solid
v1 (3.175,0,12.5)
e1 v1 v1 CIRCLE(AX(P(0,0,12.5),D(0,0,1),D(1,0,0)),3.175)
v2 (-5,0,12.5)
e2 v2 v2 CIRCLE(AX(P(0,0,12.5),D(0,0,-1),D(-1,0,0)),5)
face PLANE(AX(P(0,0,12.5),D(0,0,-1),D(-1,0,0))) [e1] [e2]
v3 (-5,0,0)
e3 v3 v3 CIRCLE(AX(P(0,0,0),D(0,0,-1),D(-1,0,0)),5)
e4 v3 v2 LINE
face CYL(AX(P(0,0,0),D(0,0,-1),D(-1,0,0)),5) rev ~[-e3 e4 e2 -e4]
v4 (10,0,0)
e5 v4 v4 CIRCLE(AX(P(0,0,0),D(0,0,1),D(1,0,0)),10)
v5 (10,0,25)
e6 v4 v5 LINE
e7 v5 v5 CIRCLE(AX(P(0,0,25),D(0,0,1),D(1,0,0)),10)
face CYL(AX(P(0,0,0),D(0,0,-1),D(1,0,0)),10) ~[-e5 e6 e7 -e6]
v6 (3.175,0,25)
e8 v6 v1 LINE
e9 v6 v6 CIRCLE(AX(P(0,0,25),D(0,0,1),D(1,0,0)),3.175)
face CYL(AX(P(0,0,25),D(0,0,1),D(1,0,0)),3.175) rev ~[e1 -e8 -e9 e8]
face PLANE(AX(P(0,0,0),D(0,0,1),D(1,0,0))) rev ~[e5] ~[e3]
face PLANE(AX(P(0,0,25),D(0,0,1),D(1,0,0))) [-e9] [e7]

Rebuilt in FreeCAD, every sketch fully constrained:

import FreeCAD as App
import Part
import Sketcher

doc = App.newDocument("Part")
body = doc.addObject("PartDesign::Body", "Body")

sketch1 = body.newObject("Sketcher::SketchObject", "Sketch")
sketch1.AttachmentSupport = (doc.getObject("XY_Plane"), [""])
sketch1.MapMode = "FlatFace"
sketch1.addGeometry(Part.Circle(App.Vector(0, 0, 0), App.Vector(0, 0, 1), 10), False)
sketch1.addConstraint(Sketcher.Constraint("Coincident", 0, 3, -1, 1))
sketch1.addConstraint(Sketcher.Constraint("Diameter", 0, 20.0))
pad1 = body.newObject("PartDesign::Pad", "Pad")
pad1.Profile = sketch1
pad1.Length = 25

sketch2 = body.newObject("Sketcher::SketchObject", "Sketch001")
sketch2.AttachmentSupport = (doc.getObject("XY_Plane"), [""])
sketch2.MapMode = "FlatFace"
sketch2.AttachmentOffset = App.Placement(App.Vector(0, 0, 25), App.Rotation())
sketch2.addGeometry(Part.Circle(App.Vector(0, 0, 0), App.Vector(0, 0, 1), 3.2), False)
sketch2.addConstraint(Sketcher.Constraint("Coincident", 0, 3, -1, 1))
sketch2.addConstraint(Sketcher.Constraint("Diameter", 0, 6.35))
pocket1 = body.newObject("PartDesign::Pocket", "Pocket")
pocket1.Profile = sketch2
pocket1.Length = 12.5

sketch3 = body.newObject("Sketcher::SketchObject", "Sketch002")
sketch3.AttachmentSupport = (doc.getObject("XY_Plane"), [""])
sketch3.MapMode = "FlatFace"
sketch3.addGeometry(Part.Circle(App.Vector(0, 0, 0), App.Vector(0, 0, 1), 5), False)
sketch3.addConstraint(Sketcher.Constraint("Coincident", 0, 3, -1, 1))
sketch3.addConstraint(Sketcher.Constraint("Diameter", 0, 10.0))
pocket2 = body.newObject("PartDesign::Pocket", "Pocket001")
pocket2.Profile = sketch3
pocket2.Length = 12.5
pocket2.Reversed = True

doc.recompute()
